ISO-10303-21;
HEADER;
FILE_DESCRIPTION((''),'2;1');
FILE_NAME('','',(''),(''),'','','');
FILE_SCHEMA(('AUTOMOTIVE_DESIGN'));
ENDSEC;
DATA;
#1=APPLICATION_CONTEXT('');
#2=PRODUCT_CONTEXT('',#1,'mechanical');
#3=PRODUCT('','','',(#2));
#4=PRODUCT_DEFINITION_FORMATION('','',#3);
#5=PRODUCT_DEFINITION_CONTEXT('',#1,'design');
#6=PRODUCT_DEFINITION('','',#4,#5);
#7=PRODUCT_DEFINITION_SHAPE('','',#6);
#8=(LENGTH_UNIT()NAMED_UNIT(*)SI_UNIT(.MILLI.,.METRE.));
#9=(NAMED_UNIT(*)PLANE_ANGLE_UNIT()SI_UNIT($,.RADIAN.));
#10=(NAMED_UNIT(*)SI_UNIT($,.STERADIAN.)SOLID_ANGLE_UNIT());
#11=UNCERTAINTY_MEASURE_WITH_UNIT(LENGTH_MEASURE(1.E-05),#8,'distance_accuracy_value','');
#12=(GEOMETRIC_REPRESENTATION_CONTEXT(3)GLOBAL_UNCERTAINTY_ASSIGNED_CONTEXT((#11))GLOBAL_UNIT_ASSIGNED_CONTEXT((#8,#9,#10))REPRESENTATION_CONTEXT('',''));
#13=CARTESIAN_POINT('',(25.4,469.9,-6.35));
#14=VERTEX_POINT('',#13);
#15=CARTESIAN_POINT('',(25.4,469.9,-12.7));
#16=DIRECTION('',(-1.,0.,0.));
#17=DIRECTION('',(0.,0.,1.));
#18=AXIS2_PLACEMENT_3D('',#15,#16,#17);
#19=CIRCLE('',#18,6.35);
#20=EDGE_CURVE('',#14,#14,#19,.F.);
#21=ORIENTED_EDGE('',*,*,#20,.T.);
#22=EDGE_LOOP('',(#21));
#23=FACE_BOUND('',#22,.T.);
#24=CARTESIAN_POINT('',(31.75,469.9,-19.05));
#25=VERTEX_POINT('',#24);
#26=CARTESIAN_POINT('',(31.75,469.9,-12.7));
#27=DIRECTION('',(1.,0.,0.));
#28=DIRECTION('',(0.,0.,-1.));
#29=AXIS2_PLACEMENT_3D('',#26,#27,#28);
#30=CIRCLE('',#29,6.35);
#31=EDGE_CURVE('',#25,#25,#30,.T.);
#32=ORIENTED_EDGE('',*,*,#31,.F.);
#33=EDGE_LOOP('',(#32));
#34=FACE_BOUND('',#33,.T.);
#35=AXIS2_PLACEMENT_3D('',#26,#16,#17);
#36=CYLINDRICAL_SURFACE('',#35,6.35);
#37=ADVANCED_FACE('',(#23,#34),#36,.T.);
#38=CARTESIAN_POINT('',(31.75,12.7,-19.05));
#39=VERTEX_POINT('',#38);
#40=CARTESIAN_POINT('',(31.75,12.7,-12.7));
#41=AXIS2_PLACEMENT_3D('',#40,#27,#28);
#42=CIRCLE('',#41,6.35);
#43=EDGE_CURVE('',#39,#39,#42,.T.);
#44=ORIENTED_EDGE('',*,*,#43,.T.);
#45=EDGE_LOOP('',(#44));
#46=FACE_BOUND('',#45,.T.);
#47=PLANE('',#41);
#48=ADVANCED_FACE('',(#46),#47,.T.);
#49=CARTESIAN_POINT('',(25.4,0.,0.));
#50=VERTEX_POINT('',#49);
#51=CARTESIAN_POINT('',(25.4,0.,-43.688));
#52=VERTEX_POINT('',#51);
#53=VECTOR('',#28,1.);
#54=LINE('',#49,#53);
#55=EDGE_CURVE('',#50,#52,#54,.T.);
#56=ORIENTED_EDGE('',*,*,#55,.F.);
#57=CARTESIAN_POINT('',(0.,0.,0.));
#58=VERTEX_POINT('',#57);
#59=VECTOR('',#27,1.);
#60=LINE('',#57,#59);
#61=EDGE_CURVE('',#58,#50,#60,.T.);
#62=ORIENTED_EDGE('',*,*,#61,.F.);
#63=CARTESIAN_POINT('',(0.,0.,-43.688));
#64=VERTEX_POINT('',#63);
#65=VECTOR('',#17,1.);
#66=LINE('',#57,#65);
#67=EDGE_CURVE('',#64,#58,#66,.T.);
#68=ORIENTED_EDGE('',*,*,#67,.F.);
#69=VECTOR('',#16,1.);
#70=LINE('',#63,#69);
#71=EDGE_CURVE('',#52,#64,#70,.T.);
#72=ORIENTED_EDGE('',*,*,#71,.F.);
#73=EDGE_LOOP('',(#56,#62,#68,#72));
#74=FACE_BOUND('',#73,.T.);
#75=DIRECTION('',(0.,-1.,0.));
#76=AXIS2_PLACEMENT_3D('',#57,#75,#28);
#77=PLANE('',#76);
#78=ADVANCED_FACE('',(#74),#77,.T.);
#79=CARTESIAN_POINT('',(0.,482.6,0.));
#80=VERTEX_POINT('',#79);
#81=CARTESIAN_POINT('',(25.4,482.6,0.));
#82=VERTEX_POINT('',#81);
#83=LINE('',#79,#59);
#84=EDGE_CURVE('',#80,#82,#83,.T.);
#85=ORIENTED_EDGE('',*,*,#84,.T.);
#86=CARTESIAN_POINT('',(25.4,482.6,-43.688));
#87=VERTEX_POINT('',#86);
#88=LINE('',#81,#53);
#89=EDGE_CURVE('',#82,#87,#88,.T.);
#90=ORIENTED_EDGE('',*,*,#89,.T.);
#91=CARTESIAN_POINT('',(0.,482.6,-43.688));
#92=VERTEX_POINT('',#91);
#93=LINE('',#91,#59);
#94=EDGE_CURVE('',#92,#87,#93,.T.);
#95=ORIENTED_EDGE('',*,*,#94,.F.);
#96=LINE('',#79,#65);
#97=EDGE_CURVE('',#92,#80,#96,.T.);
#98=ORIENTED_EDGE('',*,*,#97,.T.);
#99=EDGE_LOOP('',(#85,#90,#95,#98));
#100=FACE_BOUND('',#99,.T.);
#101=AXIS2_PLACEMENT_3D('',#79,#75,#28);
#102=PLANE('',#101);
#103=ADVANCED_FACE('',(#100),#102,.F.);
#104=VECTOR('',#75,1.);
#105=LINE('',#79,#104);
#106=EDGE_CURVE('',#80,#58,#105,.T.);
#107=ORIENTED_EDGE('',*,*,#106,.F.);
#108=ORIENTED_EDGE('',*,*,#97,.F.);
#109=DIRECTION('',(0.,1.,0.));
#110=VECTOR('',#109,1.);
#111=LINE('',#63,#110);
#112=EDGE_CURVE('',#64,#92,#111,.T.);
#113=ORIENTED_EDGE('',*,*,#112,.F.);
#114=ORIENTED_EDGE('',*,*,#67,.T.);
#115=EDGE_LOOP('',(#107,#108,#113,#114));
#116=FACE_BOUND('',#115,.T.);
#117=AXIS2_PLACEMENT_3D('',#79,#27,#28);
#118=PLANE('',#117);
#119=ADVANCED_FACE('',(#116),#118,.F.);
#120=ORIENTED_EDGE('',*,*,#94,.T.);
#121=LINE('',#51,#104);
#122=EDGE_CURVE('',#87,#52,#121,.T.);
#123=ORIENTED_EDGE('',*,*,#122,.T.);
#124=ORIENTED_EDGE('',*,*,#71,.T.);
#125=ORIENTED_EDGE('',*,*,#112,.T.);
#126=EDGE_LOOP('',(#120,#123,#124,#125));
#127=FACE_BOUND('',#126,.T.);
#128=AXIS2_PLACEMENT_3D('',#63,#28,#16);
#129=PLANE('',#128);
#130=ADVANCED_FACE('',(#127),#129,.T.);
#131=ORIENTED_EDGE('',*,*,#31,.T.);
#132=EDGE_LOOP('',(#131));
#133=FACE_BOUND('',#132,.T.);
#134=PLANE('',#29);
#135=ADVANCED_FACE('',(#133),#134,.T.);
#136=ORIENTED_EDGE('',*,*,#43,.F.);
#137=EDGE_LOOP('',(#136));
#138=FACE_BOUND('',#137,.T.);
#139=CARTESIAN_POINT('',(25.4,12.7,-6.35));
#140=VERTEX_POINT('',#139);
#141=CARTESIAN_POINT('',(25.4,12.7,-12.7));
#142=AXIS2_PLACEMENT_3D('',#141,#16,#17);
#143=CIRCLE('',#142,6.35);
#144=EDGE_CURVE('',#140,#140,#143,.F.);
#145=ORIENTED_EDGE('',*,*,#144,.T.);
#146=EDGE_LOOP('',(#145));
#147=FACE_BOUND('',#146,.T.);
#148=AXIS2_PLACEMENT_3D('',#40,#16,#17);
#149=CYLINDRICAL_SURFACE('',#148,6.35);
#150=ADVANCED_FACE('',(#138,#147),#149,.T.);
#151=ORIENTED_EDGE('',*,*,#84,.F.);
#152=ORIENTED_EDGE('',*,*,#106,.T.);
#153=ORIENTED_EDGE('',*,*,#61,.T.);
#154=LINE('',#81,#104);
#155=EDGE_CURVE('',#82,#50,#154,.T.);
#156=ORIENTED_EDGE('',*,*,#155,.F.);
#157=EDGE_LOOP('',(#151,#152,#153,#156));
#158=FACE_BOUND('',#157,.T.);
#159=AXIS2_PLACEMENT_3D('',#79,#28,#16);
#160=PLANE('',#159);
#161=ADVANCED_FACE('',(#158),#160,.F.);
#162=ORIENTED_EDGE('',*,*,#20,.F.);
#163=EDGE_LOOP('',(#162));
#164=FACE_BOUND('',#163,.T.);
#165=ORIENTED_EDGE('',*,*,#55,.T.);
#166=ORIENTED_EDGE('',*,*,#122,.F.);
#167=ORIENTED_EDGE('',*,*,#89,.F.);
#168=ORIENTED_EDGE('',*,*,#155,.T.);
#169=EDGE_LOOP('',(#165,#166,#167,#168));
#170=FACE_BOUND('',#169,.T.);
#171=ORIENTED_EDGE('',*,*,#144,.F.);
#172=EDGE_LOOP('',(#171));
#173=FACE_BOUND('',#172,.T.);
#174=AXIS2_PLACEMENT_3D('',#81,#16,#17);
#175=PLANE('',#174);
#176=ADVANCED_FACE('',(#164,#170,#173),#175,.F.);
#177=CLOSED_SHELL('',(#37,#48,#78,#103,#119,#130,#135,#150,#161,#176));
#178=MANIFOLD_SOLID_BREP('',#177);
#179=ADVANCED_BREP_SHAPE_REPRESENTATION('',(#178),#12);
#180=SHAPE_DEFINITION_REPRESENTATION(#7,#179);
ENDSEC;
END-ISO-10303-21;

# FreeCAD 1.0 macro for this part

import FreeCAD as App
import Part
import Sketcher
Q = App.Units.Quantity


def add_polygon(sketch, points):
    """Adds a closed chain of lines whose ends are joined by coincident constraints."""
    first, n = sketch.GeometryCount, len(points)
    for a, b in zip(points, points[1:] + points[:1]):
        sketch.addGeometry(Part.LineSegment(App.Vector(*a, 0), App.Vector(*b, 0)), False)
    for i in range(n):
        sketch.addConstraint(Sketcher.Constraint("Coincident", first + i, 2, first + (i + 1) % n, 1))

doc = App.newDocument("Part")
params = doc.addObject("Spreadsheet::Sheet", "Params")
for row, (alias, value) in enumerate([
    ("sketch1_width", "1 in"),
    ("pad1_length", "19 in"),
    ("sketch2_diameter", "0.5 in"),
    ("pad2_length", "0.25 in"),
    ("sketch3_diameter", "0.5 in"),
    ("pad3_length", "0.25 in"),
    ("sketch4_width", "1 in"),
    ("sketch4_height", "19 in"),
    ("pad4_length", "0.72 in"),
], start=1):
    params.set(f"A{row}", alias)
    params.set(f"B{row}", "=" + value)
    params.setAlias(f"B{row}", alias)

body = doc.addObject("PartDesign::Body", "Body")

sketch1 = body.newObject("Sketcher::SketchObject", "Sketch")
sketch1.AttachmentSupport = (doc.getObject("XZ_Plane"), [""])
sketch1.MapMode = "FlatFace"
add_polygon(sketch1, [(0, -25), (0, 0), (25, 0), (25, -25)])
sketch1.addConstraint(Sketcher.Constraint("Vertical", 0))
sketch1.addConstraint(Sketcher.Constraint("Horizontal", 1))
sketch1.addConstraint(Sketcher.Constraint("Vertical", 2))
sketch1.addConstraint(Sketcher.Constraint("Horizontal", 3))
sketch1.addConstraint(Sketcher.Constraint("Coincident", 0, 2, -1, 1))
sketch1.addConstraint(Sketcher.Constraint("Equal", 3, 0))
sketch1.addConstraint(Sketcher.Constraint("DistanceX", 1, 1, 1, 2, Q("1 in")))
sketch1.setExpression("Constraints[10]", "Params.sketch1_width")
pad1 = body.newObject("PartDesign::Pad", "Pad")
pad1.Profile = sketch1
pad1.setExpression("Length", "Params.pad1_length")
pad1.Reversed = True

sketch2 = body.newObject("Sketcher::SketchObject", "Sketch001")
sketch2.AttachmentSupport = (doc.getObject("YZ_Plane"), [""])
sketch2.MapMode = "FlatFace"
sketch2.AttachmentOffset = App.Placement(App.Vector(0, 0, 1 * 25.4), App.Rotation())
sketch2.addGeometry(Part.Circle(App.Vector(470, -13, 0), App.Vector(0, 0, 1), 6), False)
sketch2.addConstraint(Sketcher.Constraint("Diameter", 0, Q("0.5 in")))
sketch2.addConstraint(Sketcher.Constraint("DistanceX", -1, 1, 0, 3, Q("18.5 in")))
sketch2.addConstraint(Sketcher.Constraint("DistanceY", 0, 3, -1, 1, Q("0.5 in")))
sketch2.setExpression("Constraints[0]", "Params.sketch2_diameter")
pad2 = body.newObject("PartDesign::Pad", "Pad001")
pad2.Profile = sketch2
pad2.setExpression("Length", "Params.pad2_length")

sketch3 = body.newObject("Sketcher::SketchObject", "Sketch002")
sketch3.AttachmentSupport = (doc.getObject("YZ_Plane"), [""])
sketch3.MapMode = "FlatFace"
sketch3.AttachmentOffset = App.Placement(App.Vector(0, 0, 1 * 25.4), App.Rotation())
sketch3.addGeometry(Part.Circle(App.Vector(13, -13, 0), App.Vector(0, 0, 1), 6), False)
sketch3.addConstraint(Sketcher.Constraint("Diameter", 0, Q("0.5 in")))
sketch3.addConstraint(Sketcher.Constraint("DistanceX", -1, 1, 0, 3, Q("0.5 in")))
sketch3.addConstraint(Sketcher.Constraint("DistanceY", 0, 3, -1, 1, Q("0.5 in")))
sketch3.setExpression("Constraints[0]", "Params.sketch3_diameter")
pad3 = body.newObject("PartDesign::Pad", "Pad002")
pad3.Profile = sketch3
pad3.setExpression("Length", "Params.pad3_length")

sketch4 = body.newObject("Sketcher::SketchObject", "Sketch003")
sketch4.AttachmentSupport = (doc.getObject("XY_Plane"), [""])
sketch4.MapMode = "FlatFace"
sketch4.AttachmentOffset = App.Placement(App.Vector(0, 0, -1 * 25.4), App.Rotation())
add_polygon(sketch4, [(25, 483), (25, 0), (0, 0), (0, 483)])
sketch4.addConstraint(Sketcher.Constraint("Vertical", 0))
sketch4.addConstraint(Sketcher.Constraint("Horizontal", 1))
sketch4.addConstraint(Sketcher.Constraint("Vertical", 2))
sketch4.addConstraint(Sketcher.Constraint("Horizontal", 3))
sketch4.addConstraint(Sketcher.Constraint("Coincident", 1, 2, -1, 1))
sketch4.addConstraint(Sketcher.Constraint("DistanceX", 1, 2, 1, 1, Q("1 in")))
sketch4.addConstraint(Sketcher.Constraint("DistanceY", 0, 2, 0, 1, Q("19 in")))
sketch4.setExpression("Constraints[9]", "Params.sketch4_width")
sketch4.setExpression("Constraints[10]", "Params.sketch4_height")
pad4 = body.newObject("PartDesign::Pad", "Pad003")
pad4.Profile = sketch4
pad4.setExpression("Length", "Params.pad4_length")
pad4.Reversed = True

doc.recompute()
